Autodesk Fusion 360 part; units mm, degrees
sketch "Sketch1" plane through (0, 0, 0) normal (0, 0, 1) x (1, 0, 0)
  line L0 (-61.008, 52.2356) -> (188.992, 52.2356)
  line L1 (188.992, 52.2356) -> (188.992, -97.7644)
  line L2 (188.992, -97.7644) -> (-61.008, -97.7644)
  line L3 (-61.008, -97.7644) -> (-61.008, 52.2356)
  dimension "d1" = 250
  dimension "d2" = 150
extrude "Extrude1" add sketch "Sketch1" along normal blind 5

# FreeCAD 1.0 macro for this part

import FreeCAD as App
import Part
import Sketcher

V = App.Vector

doc = App.newDocument("Part")
body = doc.addObject("PartDesign::Body", "Body")

# Sketch on XY plane
sketch1 = body.newObject("Sketcher::SketchObject", "Sketch")
sketch1.AttachmentSupport = (doc.getObject("XY_Plane"), [""])
sketch1.MapMode = "FlatFace"
sketch1.addGeometry([
    Part.LineSegment(V(188.992, 52.2356, 0), V(-61.008, 52.2356, 0)),
    Part.LineSegment(V(-61.008, 52.2356, 0), V(-61.008, -97.7644, 0)),
    Part.LineSegment(V(-61.008, -97.7644, 0), V(188.992, -97.7644, 0)),
    Part.LineSegment(V(188.992, -97.7644, 0), V(188.992, 52.2356, 0)),
], False)
sketch1.addConstraint([
    Sketcher.Constraint("Coincident", 0, 2, 1, 1),
    Sketcher.Constraint("Coincident", 1, 2, 2, 1),
    Sketcher.Constraint("Coincident", 2, 2, 3, 1),
    Sketcher.Constraint("Coincident", 3, 2, 0, 1),
    Sketcher.Constraint("Horizontal", 0),
    Sketcher.Constraint("Vertical", 1),
    Sketcher.Constraint("Horizontal", 2),
    Sketcher.Constraint("Vertical", 3),
    Sketcher.Constraint("DistanceX", 0, 2, 0, 1, 250.0),
    Sketcher.Constraint("DistanceY", 1, 2, 1, 1, 150.0),
    Sketcher.Constraint("DistanceX", 0, 2, -1, 1, 61.008),
    Sketcher.Constraint("DistanceY", -1, 1, 0, 2, 52.2356),
])
pad1 = body.newObject("PartDesign::Pad", "Pad")
pad1.Profile = sketch1
pad1.Length = 5

doc.recompute()
